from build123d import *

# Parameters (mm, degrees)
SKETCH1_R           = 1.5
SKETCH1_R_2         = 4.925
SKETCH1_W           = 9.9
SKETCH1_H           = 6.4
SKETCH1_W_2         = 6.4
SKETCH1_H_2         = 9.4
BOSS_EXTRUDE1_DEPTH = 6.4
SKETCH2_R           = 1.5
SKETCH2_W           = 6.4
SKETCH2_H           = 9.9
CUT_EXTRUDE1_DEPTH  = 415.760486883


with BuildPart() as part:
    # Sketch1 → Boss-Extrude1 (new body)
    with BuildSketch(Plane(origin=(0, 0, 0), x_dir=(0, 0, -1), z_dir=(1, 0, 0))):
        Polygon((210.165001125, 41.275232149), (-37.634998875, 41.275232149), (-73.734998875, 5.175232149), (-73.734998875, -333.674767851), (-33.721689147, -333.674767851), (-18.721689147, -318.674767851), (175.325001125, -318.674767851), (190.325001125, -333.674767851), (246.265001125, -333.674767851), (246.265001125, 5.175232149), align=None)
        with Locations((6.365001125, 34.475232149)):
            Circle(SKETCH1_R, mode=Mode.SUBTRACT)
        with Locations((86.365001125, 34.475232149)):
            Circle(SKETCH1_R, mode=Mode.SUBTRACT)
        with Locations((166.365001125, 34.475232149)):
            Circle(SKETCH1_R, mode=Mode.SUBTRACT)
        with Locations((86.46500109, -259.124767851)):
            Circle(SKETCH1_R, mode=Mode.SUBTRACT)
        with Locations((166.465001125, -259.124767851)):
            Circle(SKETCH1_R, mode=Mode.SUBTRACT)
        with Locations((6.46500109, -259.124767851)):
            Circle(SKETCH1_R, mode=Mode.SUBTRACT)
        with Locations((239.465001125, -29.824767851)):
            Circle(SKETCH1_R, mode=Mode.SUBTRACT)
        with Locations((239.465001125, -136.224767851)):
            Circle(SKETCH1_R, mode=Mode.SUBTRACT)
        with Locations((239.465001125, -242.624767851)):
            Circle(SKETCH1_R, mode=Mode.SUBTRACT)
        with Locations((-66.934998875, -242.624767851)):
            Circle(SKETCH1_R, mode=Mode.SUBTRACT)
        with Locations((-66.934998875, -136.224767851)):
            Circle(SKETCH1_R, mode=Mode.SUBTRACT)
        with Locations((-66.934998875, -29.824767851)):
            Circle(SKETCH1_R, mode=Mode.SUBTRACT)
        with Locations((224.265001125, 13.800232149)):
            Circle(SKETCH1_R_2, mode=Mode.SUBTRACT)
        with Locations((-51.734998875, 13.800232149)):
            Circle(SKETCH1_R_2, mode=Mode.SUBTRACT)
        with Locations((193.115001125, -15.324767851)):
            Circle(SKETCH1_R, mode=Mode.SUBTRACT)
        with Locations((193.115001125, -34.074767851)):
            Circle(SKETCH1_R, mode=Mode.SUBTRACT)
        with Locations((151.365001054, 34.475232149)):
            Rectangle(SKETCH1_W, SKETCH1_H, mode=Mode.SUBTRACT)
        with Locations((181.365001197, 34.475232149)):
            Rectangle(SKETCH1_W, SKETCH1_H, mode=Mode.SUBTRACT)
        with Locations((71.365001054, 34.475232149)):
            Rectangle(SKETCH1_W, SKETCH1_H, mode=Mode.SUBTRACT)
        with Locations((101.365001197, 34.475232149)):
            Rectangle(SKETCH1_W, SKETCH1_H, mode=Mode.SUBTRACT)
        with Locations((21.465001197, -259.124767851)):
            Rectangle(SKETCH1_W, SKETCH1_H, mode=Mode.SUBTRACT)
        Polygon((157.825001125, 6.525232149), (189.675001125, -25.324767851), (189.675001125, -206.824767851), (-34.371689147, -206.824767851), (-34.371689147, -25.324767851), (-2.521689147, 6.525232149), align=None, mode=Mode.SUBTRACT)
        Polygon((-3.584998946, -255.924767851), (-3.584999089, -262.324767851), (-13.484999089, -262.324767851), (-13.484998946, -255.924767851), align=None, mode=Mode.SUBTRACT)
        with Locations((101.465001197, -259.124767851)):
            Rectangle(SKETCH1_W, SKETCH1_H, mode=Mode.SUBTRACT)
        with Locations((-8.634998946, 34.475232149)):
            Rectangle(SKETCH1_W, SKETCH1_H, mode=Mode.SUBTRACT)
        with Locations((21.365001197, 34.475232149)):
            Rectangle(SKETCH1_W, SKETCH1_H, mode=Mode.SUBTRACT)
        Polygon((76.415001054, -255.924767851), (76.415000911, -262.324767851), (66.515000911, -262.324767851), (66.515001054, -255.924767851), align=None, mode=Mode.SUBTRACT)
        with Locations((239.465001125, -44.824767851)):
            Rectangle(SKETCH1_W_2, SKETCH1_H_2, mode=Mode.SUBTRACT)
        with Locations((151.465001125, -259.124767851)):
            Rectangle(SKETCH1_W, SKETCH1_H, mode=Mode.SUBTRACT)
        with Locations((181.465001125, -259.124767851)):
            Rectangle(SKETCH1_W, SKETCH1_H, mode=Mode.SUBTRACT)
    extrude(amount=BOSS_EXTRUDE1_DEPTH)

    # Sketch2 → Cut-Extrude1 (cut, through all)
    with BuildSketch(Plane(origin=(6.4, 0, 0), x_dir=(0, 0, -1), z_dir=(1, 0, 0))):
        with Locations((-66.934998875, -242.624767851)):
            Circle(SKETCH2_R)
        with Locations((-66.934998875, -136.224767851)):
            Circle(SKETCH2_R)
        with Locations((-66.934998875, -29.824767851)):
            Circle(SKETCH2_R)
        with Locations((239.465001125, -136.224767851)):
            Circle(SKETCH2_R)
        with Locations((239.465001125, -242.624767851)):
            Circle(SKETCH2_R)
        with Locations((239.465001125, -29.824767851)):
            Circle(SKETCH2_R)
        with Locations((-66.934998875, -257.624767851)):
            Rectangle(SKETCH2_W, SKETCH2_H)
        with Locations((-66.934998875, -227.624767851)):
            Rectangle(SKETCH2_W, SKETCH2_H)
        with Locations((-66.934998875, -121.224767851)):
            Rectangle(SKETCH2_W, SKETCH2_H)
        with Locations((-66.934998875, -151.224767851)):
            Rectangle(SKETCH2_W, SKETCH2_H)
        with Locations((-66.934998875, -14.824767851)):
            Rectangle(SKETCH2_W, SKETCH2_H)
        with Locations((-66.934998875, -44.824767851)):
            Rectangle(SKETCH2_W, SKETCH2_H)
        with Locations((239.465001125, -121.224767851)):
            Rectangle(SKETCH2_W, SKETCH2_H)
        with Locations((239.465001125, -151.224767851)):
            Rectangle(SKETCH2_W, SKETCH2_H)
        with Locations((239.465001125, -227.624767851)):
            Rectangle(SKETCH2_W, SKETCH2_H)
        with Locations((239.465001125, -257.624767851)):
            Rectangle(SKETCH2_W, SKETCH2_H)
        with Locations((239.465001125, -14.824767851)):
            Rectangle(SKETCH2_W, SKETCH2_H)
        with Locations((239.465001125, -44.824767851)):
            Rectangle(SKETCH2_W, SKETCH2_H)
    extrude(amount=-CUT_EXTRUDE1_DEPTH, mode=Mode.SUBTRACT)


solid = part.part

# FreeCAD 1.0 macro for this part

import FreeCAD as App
import Part
import Sketcher
Q = App.Units.Quantity

doc = App.newDocument("Part")
body = doc.addObject("PartDesign::Body", "Body")

# Sketch on YZ plane
sketch1 = body.newObject("Sketcher::SketchObject", "Sketch")
sketch1.AttachmentSupport = (doc.getObject("YZ_Plane"), [""])
sketch1.MapMode = "FlatFace"
sketch1.addGeometry([
    Part.LineSegment(App.Vector(41.3, -210.2, 0), App.Vector(41.3, 37.6, 0)),  # 0
    Part.LineSegment(App.Vector(41.3, 37.6, 0), App.Vector(5.2, 73.7, 0)),  # 1
    Part.LineSegment(App.Vector(5.2, 73.7, 0), App.Vector(-333.7, 73.7, 0)),  # 2
    Part.LineSegment(App.Vector(-333.7, 73.7, 0), App.Vector(-333.7, 33.7, 0)),  # 3
    Part.LineSegment(App.Vector(-333.7, 33.7, 0), App.Vector(-318.7, 18.7, 0)),  # 4
    Part.LineSegment(App.Vector(-318.7, 18.7, 0), App.Vector(-318.7, -175.3, 0)),  # 5
    Part.LineSegment(App.Vector(-318.7, -175.3, 0), App.Vector(-333.7, -190.3, 0)),  # 6
    Part.LineSegment(App.Vector(-333.7, -190.3, 0), App.Vector(-333.7, -246.3, 0)),  # 7
    Part.LineSegment(App.Vector(-333.7, -246.3, 0), App.Vector(5.2, -246.3, 0)),  # 8
    Part.LineSegment(App.Vector(5.2, -246.3, 0), App.Vector(41.3, -210.2, 0)),  # 9
    Part.Circle(App.Vector(-242.6, 66.9, 0), App.Vector(0, 0, 1), 1.5),  # 10
    Part.LineSegment(App.Vector(-255.9, 13.5, 0), App.Vector(-255.9, 3.6, 0)),  # 11
    Part.LineSegment(App.Vector(-255.9, 3.6, 0), App.Vector(-262.3, 3.6, 0)),  # 12
    Part.LineSegment(App.Vector(-262.3, 3.6, 0), App.Vector(-262.3, 13.5, 0)),  # 13
    Part.LineSegment(App.Vector(-262.3, 13.5, 0), App.Vector(-255.9, 13.5, 0)),  # 14
    Part.Circle(App.Vector(-259.1, -6.5, 0), App.Vector(0, 0, 1), 1.5),  # 15
    Part.LineSegment(App.Vector(-262.3, -26.4, 0), App.Vector(-262.3, -16.5, 0)),  # 16
    Part.LineSegment(App.Vector(-262.3, -16.5, 0), App.Vector(-255.9, -16.5, 0)),  # 17
    Part.LineSegment(App.Vector(-255.9, -16.5, 0), App.Vector(-255.9, -26.4, 0)),  # 18
    Part.LineSegment(App.Vector(-255.9, -26.4, 0), App.Vector(-262.3, -26.4, 0)),  # 19
    Part.LineSegment(App.Vector(-255.9, -66.5, 0), App.Vector(-255.9, -76.4, 0)),  # 20
    Part.LineSegment(App.Vector(-255.9, -76.4, 0), App.Vector(-262.3, -76.4, 0)),  # 21
    Part.LineSegment(App.Vector(-262.3, -76.4, 0), App.Vector(-262.3, -66.5, 0)),  # 22
    Part.LineSegment(App.Vector(-262.3, -66.5, 0), App.Vector(-255.9, -66.5, 0)),  # 23
    Part.Circle(App.Vector(-259.1, -86.5, 0), App.Vector(0, 0, 1), 1.5),  # 24
    Part.Circle(App.Vector(-136.2, 66.9, 0), App.Vector(0, 0, 1), 1.5),  # 25
    Part.LineSegment(App.Vector(-262.3, -106.4, 0), App.Vector(-262.3, -96.5, 0)),  # 26
    Part.LineSegment(App.Vector(-262.3, -96.5, 0), App.Vector(-255.9, -96.5, 0)),  # 27
    Part.LineSegment(App.Vector(-255.9, -96.5, 0), App.Vector(-255.9, -106.4, 0)),  # 28
    Part.LineSegment(App.Vector(-255.9, -106.4, 0), App.Vector(-262.3, -106.4, 0)),  # 29
    Part.LineSegment(App.Vector(-262.3, -156.4, 0), App.Vector(-262.3, -146.5, 0)),  # 30
    Part.LineSegment(App.Vector(-262.3, -146.5, 0), App.Vector(-255.9, -146.5, 0)),  # 31
    Part.LineSegment(App.Vector(-255.9, -146.5, 0), App.Vector(-255.9, -156.4, 0)),  # 32
    Part.LineSegment(App.Vector(-255.9, -156.4, 0), App.Vector(-262.3, -156.4, 0)),  # 33
    Part.Circle(App.Vector(-259.1, -166.5, 0), App.Vector(0, 0, 1), 1.5),  # 34
    Part.LineSegment(App.Vector(-262.3, -186.4, 0), App.Vector(-262.3, -176.5, 0)),  # 35
    Part.LineSegment(App.Vector(-262.3, -176.5, 0), App.Vector(-255.9, -176.5, 0)),  # 36
    Part.LineSegment(App.Vector(-255.9, -176.5, 0), App.Vector(-255.9, -186.4, 0)),  # 37
    Part.LineSegment(App.Vector(-255.9, -186.4, 0), App.Vector(-262.3, -186.4, 0)),  # 38
    Part.Circle(App.Vector(-242.6, -239.5, 0), App.Vector(0, 0, 1), 1.5),  # 39
    Part.Circle(App.Vector(-136.2, -239.5, 0), App.Vector(0, 0, 1), 1.5),  # 40
    Part.LineSegment(App.Vector(6.5, 2.5, 0), App.Vector(6.5, -157.8, 0)),  # 41
    Part.LineSegment(App.Vector(6.5, -157.8, 0), App.Vector(-25.3, -189.7, 0)),  # 42
    Part.LineSegment(App.Vector(-25.3, -189.7, 0), App.Vector(-206.8, -189.7, 0)),  # 43
    Part.LineSegment(App.Vector(-206.8, -189.7, 0), App.Vector(-206.8, 34.4, 0)),  # 44
    Part.LineSegment(App.Vector(-206.8, 34.4, 0), App.Vector(-25.3, 34.4, 0)),  # 45
    Part.LineSegment(App.Vector(-25.3, 34.4, 0), App.Vector(6.5, 2.5, 0)),  # 46
    Part.Circle(App.Vector(-29.8, 66.9, 0), App.Vector(0, 0, 1), 1.5),  # 47
    Part.Circle(App.Vector(13.8, 51.7, 0), App.Vector(0, 0, 1), 4.9),  # 48
    Part.LineSegment(App.Vector(31.3, 3.7, 0), App.Vector(31.3, 13.6, 0)),  # 49
    Part.LineSegment(App.Vector(31.3, 13.6, 0), App.Vector(37.7, 13.6, 0)),  # 50
    Part.LineSegment(App.Vector(37.7, 13.6, 0), App.Vector(37.7, 3.7, 0)),  # 51
    Part.LineSegment(App.Vector(37.7, 3.7, 0), App.Vector(31.3, 3.7, 0)),  # 52
    Part.Circle(App.Vector(34.5, -6.4, 0), App.Vector(0, 0, 1), 1.5),  # 53
    Part.LineSegment(App.Vector(31.3, -26.3, 0), App.Vector(31.3, -16.4, 0)),  # 54
    Part.LineSegment(App.Vector(31.3, -16.4, 0), App.Vector(37.7, -16.4, 0)),  # 55
    Part.LineSegment(App.Vector(37.7, -16.4, 0), App.Vector(37.7, -26.3, 0)),  # 56
    Part.LineSegment(App.Vector(37.7, -26.3, 0), App.Vector(31.3, -26.3, 0)),  # 57
    Part.LineSegment(App.Vector(31.3, -76.3, 0), App.Vector(31.3, -66.4, 0)),  # 58
    Part.LineSegment(App.Vector(31.3, -66.4, 0), App.Vector(37.7, -66.4, 0)),  # 59
    Part.LineSegment(App.Vector(37.7, -66.4, 0), App.Vector(37.7, -76.3, 0)),  # 60
    Part.LineSegment(App.Vector(37.7, -76.3, 0), App.Vector(31.3, -76.3, 0)),  # 61
    Part.Circle(App.Vector(34.5, -86.4, 0), App.Vector(0, 0, 1), 1.5),  # 62
    Part.LineSegment(App.Vector(-49.5, -242.7, 0), App.Vector(-49.5, -236.3, 0)),  # 63
    Part.LineSegment(App.Vector(-49.5, -236.3, 0), App.Vector(-40.1, -236.3, 0)),  # 64
    Part.LineSegment(App.Vector(-40.1, -236.3, 0), App.Vector(-40.1, -242.7, 0)),  # 65
    Part.LineSegment(App.Vector(-40.1, -242.7, 0), App.Vector(-49.5, -242.7, 0)),  # 66
    Part.LineSegment(App.Vector(31.3, -106.3, 0), App.Vector(31.3, -96.4, 0)),  # 67
    Part.LineSegment(App.Vector(31.3, -96.4, 0), App.Vector(37.7, -96.4, 0)),  # 68
    Part.LineSegment(App.Vector(37.7, -96.4, 0), App.Vector(37.7, -106.3, 0)),  # 69
    Part.LineSegment(App.Vector(37.7, -106.3, 0), App.Vector(31.3, -106.3, 0)),  # 70
    Part.LineSegment(App.Vector(31.3, -156.3, 0), App.Vector(31.3, -146.4, 0)),  # 71
    Part.LineSegment(App.Vector(31.3, -146.4, 0), App.Vector(37.7, -146.4, 0)),  # 72
    Part.LineSegment(App.Vector(37.7, -146.4, 0), App.Vector(37.7, -156.3, 0)),  # 73
    Part.LineSegment(App.Vector(37.7, -156.3, 0), App.Vector(31.3, -156.3, 0)),  # 74
    Part.Circle(App.Vector(-34.1, -193.1, 0), App.Vector(0, 0, 1), 1.5),  # 75
    Part.Circle(App.Vector(-15.3, -193.1, 0), App.Vector(0, 0, 1), 1.5),  # 76
    Part.Circle(App.Vector(-29.8, -239.5, 0), App.Vector(0, 0, 1), 1.5),  # 77
    Part.Circle(App.Vector(34.5, -166.4, 0), App.Vector(0, 0, 1), 1.5),  # 78
    Part.LineSegment(App.Vector(31.3, -186.3, 0), App.Vector(31.3, -176.4, 0)),  # 79
    Part.LineSegment(App.Vector(31.3, -176.4, 0), App.Vector(37.7, -176.4, 0)),  # 80
    Part.LineSegment(App.Vector(37.7, -176.4, 0), App.Vector(37.7, -186.3, 0)),  # 81
    Part.LineSegment(App.Vector(37.7, -186.3, 0), App.Vector(31.3, -186.3, 0)),  # 82
    Part.Circle(App.Vector(13.8, -224.3, 0), App.Vector(0, 0, 1), 4.9),  # 83
], False)
sketch1.addConstraint([
    Sketcher.Constraint("Coincident", 0, 2, 1, 1),
    Sketcher.Constraint("Coincident", 1, 2, 2, 1),
    Sketcher.Constraint("Coincident", 2, 2, 3, 1),
    Sketcher.Constraint("Coincident", 3, 2, 4, 1),
    Sketcher.Constraint("Coincident", 4, 2, 5, 1),
    Sketcher.Constraint("Coincident", 5, 2, 6, 1),
    Sketcher.Constraint("Coincident", 6, 2, 7, 1),
    Sketcher.Constraint("Coincident", 7, 2, 8, 1),
    Sketcher.Constraint("Coincident", 8, 2, 9, 1),
    Sketcher.Constraint("Coincident", 9, 2, 0, 1),
    Sketcher.Constraint("Coincident", 11, 2, 12, 1),
    Sketcher.Constraint("Coincident", 12, 2, 13, 1),
    Sketcher.Constraint("Coincident", 13, 2, 14, 1),
    Sketcher.Constraint("Coincident", 14, 2, 11, 1),
    Sketcher.Constraint("Coincident", 16, 2, 17, 1),
    Sketcher.Constraint("Coincident", 17, 2, 18, 1),
    Sketcher.Constraint("Coincident", 18, 2, 19, 1),
    Sketcher.Constraint("Coincident", 19, 2, 16, 1),
    Sketcher.Constraint("Coincident", 20, 2, 21, 1),
    Sketcher.Constraint("Coincident", 21, 2, 22, 1),
    Sketcher.Constraint("Coincident", 22, 2, 23, 1),
    Sketcher.Constraint("Coincident", 23, 2, 20, 1),
    Sketcher.Constraint("Coincident", 26, 2, 27, 1),
    Sketcher.Constraint("Coincident", 27, 2, 28, 1),
    Sketcher.Constraint("Coincident", 28, 2, 29, 1),
    Sketcher.Constraint("Coincident", 29, 2, 26, 1),
    Sketcher.Constraint("Coincident", 30, 2, 31, 1),
    Sketcher.Constraint("Coincident", 31, 2, 32, 1),
    Sketcher.Constraint("Coincident", 32, 2, 33, 1),
    Sketcher.Constraint("Coincident", 33, 2, 30, 1),
    Sketcher.Constraint("Coincident", 35, 2, 36, 1),
    Sketcher.Constraint("Coincident", 36, 2, 37, 1),
    Sketcher.Constraint("Coincident", 37, 2, 38, 1),
    Sketcher.Constraint("Coincident", 38, 2, 35, 1),
    Sketcher.Constraint("Coincident", 41, 2, 42, 1),
    Sketcher.Constraint("Coincident", 42, 2, 43, 1),
    Sketcher.Constraint("Coincident", 43, 2, 44, 1),
    Sketcher.Constraint("Coincident", 44, 2, 45, 1),
    Sketcher.Constraint("Coincident", 45, 2, 46, 1),
    Sketcher.Constraint("Coincident", 46, 2, 41, 1),
    Sketcher.Constraint("Coincident", 49, 2, 50, 1),
    Sketcher.Constraint("Coincident", 50, 2, 51, 1),
    Sketcher.Constraint("Coincident", 51, 2, 52, 1),
    Sketcher.Constraint("Coincident", 52, 2, 49, 1),
    Sketcher.Constraint("Coincident", 54, 2, 55, 1),
    Sketcher.Constraint("Coincident", 55, 2, 56, 1),
    Sketcher.Constraint("Coincident", 56, 2, 57, 1),
    Sketcher.Constraint("Coincident", 57, 2, 54, 1),
    Sketcher.Constraint("Coincident", 58, 2, 59, 1),
    Sketcher.Constraint("Coincident", 59, 2, 60, 1),
    Sketcher.Constraint("Coincident", 60, 2, 61, 1),
    Sketcher.Constraint("Coincident", 61, 2, 58, 1),
    Sketcher.Constraint("Coincident", 63, 2, 64, 1),
    Sketcher.Constraint("Coincident", 64, 2, 65, 1),
    Sketcher.Constraint("Coincident", 65, 2, 66, 1),
    Sketcher.Constraint("Coincident", 66, 2, 63, 1),
    Sketcher.Constraint("Coincident", 67, 2, 68, 1),
    Sketcher.Constraint("Coincident", 68, 2, 69, 1),
    Sketcher.Constraint("Coincident", 69, 2, 70, 1),
    Sketcher.Constraint("Coincident", 70, 2, 67, 1),
    Sketcher.Constraint("Coincident", 71, 2, 72, 1),
    Sketcher.Constraint("Coincident", 72, 2, 73, 1),
    Sketcher.Constraint("Coincident", 73, 2, 74, 1),
    Sketcher.Constraint("Coincident", 74, 2, 71, 1),
    Sketcher.Constraint("Coincident", 79, 2, 80, 1),
    Sketcher.Constraint("Coincident", 80, 2, 81, 1),
    Sketcher.Constraint("Coincident", 81, 2, 82, 1),
    Sketcher.Constraint("Coincident", 82, 2, 79, 1),
    Sketcher.Constraint("Vertical", 0),
    Sketcher.Constraint("Horizontal", 2),
    Sketcher.Constraint("Vertical", 3),
    Sketcher.Constraint("Vertical", 5),
    Sketcher.Constraint("Vertical", 7),
    Sketcher.Constraint("Horizontal", 8),
    Sketcher.Constraint("Vertical", 11),
    Sketcher.Constraint("Horizontal", 12),
    Sketcher.Constraint("Vertical", 13),
    Sketcher.Constraint("Horizontal", 14),
    Sketcher.Constraint("Vertical", 16),
    Sketcher.Constraint("Horizontal", 17),
    Sketcher.Constraint("Vertical", 18),
    Sketcher.Constraint("Horizontal", 19),
    Sketcher.Constraint("Vertical", 20),
    Sketcher.Constraint("Horizontal", 21),
    Sketcher.Constraint("Vertical", 22),
    Sketcher.Constraint("Horizontal", 23),
    Sketcher.Constraint("Vertical", 26),
    Sketcher.Constraint("Horizontal", 27),
    Sketcher.Constraint("Vertical", 28),
    Sketcher.Constraint("Horizontal", 29),
    Sketcher.Constraint("Vertical", 30),
    Sketcher.Constraint("Horizontal", 31),
    Sketcher.Constraint("Vertical", 32),
    Sketcher.Constraint("Horizontal", 33),
    Sketcher.Constraint("Vertical", 35),
    Sketcher.Constraint("Horizontal", 36),
    Sketcher.Constraint("Vertical", 37),
    Sketcher.Constraint("Horizontal", 38),
    Sketcher.Constraint("Vertical", 41),
    Sketcher.Constraint("Horizontal", 43),
    Sketcher.Constraint("Vertical", 44),
    Sketcher.Constraint("Horizontal", 45),
    Sketcher.Constraint("Vertical", 49),
    Sketcher.Constraint("Horizontal", 50),
    Sketcher.Constraint("Vertical", 51),
    Sketcher.Constraint("Horizontal", 52),
    Sketcher.Constraint("Vertical", 54),
    Sketcher.Constraint("Horizontal", 55),
    Sketcher.Constraint("Vertical", 56),
    Sketcher.Constraint("Horizontal", 57),
    Sketcher.Constraint("Vertical", 58),
    Sketcher.Constraint("Horizontal", 59),
    Sketcher.Constraint("Vertical", 60),
    Sketcher.Constraint("Horizontal", 61),
    Sketcher.Constraint("Vertical", 63),
    Sketcher.Constraint("Horizontal", 64),
    Sketcher.Constraint("Vertical", 65),
    Sketcher.Constraint("Horizontal", 66),
    Sketcher.Constraint("Vertical", 67),
    Sketcher.Constraint("Horizontal", 68),
    Sketcher.Constraint("Vertical", 69),
    Sketcher.Constraint("Horizontal", 70),
    Sketcher.Constraint("Vertical", 71),
    Sketcher.Constraint("Horizontal", 72),
    Sketcher.Constraint("Vertical", 73),
    Sketcher.Constraint("Horizontal", 74),
    Sketcher.Constraint("Vertical", 79),
    Sketcher.Constraint("Horizontal", 80),
    Sketcher.Constraint("Vertical", 81),
    Sketcher.Constraint("Horizontal", 82),
    Sketcher.Constraint("Equal", 10, 15),
    Sketcher.Constraint("Equal", 15, 24),
    Sketcher.Constraint("Equal", 24, 25),
    Sketcher.Constraint("Equal", 25, 34),
    Sketcher.Constraint("Equal", 34, 39),
    Sketcher.Constraint("Equal", 39, 40),
    Sketcher.Constraint("Equal", 40, 47),
    Sketcher.Constraint("Equal", 47, 53),
    Sketcher.Constraint("Equal", 53, 62),
    Sketcher.Constraint("Equal", 62, 75),
    Sketcher.Constraint("Equal", 75, 76),
    Sketcher.Constraint("Equal", 76, 77),
    Sketcher.Constraint("Equal", 77, 78),
    Sketcher.Constraint("Equal", 48, 83),
    Sketcher.Constraint("Parallel", 1, 4),
    Sketcher.Constraint("Perpendicular", 4, 6),
    Sketcher.Constraint("Parallel", 6, 9),
    Sketcher.Constraint("Parallel", 9, 42),
    Sketcher.Constraint("Perpendicular", 42, 46),
    Sketcher.Constraint("Horizontal", 10, 3, 25, 3),
    Sketcher.Constraint("Horizontal", 39, 3, 40, 3),
    Sketcher.Constraint("Horizontal", 25, 3, 47, 3),
    Sketcher.Constraint("Horizontal", 75, 3, 76, 3),
    Sketcher.Constraint("Horizontal", 40, 3, 77, 3),
    Sketcher.Constraint("Vertical", 15, 3, 24, 3),
    Sketcher.Constraint("Vertical", 24, 3, 34, 3),
    Sketcher.Constraint("Vertical", 10, 3, 39, 3),
    Sketcher.Constraint("Vertical", 25, 3, 40, 3),
    Sketcher.Constraint("Vertical", 53, 3, 62, 3),
    Sketcher.Constraint("Vertical", 47, 3, 77, 3),
    Sketcher.Constraint("Vertical", 62, 3, 78, 3),
    Sketcher.Constraint("Vertical", 48, 3, 83, 3),
    Sketcher.Constraint("Vertical", 3, 2, 6, 2),
    Sketcher.Constraint("Vertical", 1, 2, 8, 2),
    Sketcher.Constraint("Vertical", 13, 2, 16, 2),
    Sketcher.Constraint("Vertical", 14, 2, 17, 2),
    Sketcher.Constraint("Vertical", 18, 2, 20, 2),
    Sketcher.Constraint("Vertical", 19, 2, 21, 2),
    Sketcher.Constraint("Vertical", 22, 2, 26, 2),
    Sketcher.Constraint("Vertical", 23, 2, 27, 2),
    Sketcher.Constraint("Vertical", 29, 2, 30, 2),
    Sketcher.Constraint("Vertical", 28, 2, 31, 2),
    Sketcher.Constraint("Vertical", 33, 2, 35, 2),
    Sketcher.Constraint("Vertical", 32, 2, 36, 2),
    Sketcher.Constraint("Vertical", 42, 2, 45, 2),
    Sketcher.Constraint("Vertical", 52, 2, 54, 2),
    Sketcher.Constraint("Vertical", 51, 2, 55, 2),
    Sketcher.Constraint("Vertical", 57, 2, 58, 2),
    Sketcher.Constraint("Vertical", 56, 2, 59, 2),
    Sketcher.Constraint("Vertical", 61, 2, 67, 2),
    Sketcher.Constraint("Vertical", 60, 2, 68, 2),
    Sketcher.Constraint("Vertical", 70, 2, 71, 2),
    Sketcher.Constraint("Vertical", 69, 2, 72, 2),
    Sketcher.Constraint("Vertical", 74, 2, 79, 2),
    Sketcher.Constraint("Vertical", 73, 2, 80, 2),
    Sketcher.Constraint("Equal", 38, 50),
    Sketcher.Constraint("Equal", 13, 16),
    Sketcher.Constraint("Equal", 18, 20),
    Sketcher.Constraint("Equal", 22, 26),
    Sketcher.Constraint("Equal", 28, 30),
    Sketcher.Constraint("Equal", 32, 35),
    Sketcher.Constraint("Equal", 37, 49),
    Sketcher.Constraint("Equal", 51, 54),
    Sketcher.Constraint("Equal", 56, 58),
    Sketcher.Constraint("Equal", 82, 63),
    Sketcher.Constraint("Equal", 60, 67),
    Sketcher.Constraint("Equal", 69, 71),
    Sketcher.Constraint("Equal", 73, 79),
    Sketcher.Constraint("Equal", 4, 6),
    Sketcher.Constraint("Diameter", 10, Q("3 mm")),
    Sketcher.Constraint("Diameter", 48, Q("9.85 mm")),
    Sketcher.Constraint("DistanceX", 12, 2, 12, 1, Q("6.4 mm")),
    Sketcher.Constraint("DistanceX", 43, 2, 43, 1, Q("181.5 mm")),
    Sketcher.Constraint("DistanceX", 64, 1, 64, 2, Q("9.4 mm")),
    Sketcher.Constraint("DistanceY", 0, 1, 0, 2, Q("247.8 mm")),
    Sketcher.Constraint("DistanceY", 11, 2, 11, 1, Q("9.9 mm")),
    Sketcher.Constraint("DistanceX", 2, 2, 2, 1, Q("338.85 mm")),
    Sketcher.Constraint("DistanceY", 7, 2, 7, 1, Q("55.94 mm")),
    Sketcher.Constraint("DistanceY", -1, 1, 10, 3, Q("66.934999 mm")),
    Sketcher.Constraint("DistanceY", 15, 3, -1, 1, Q("6.465001 mm")),
    Sketcher.Constraint("DistanceY", 24, 3, -1, 1, Q("86.465001 mm")),
    Sketcher.Constraint("DistanceY", 34, 3, -1, 1, Q("166.465001 mm")),
    Sketcher.Constraint("DistanceY", 39, 3, -1, 1, Q("239.465001 mm")),
    Sketcher.Constraint("DistanceY", -1, 1, 48, 3, Q("51.734999 mm")),
    Sketcher.Constraint("DistanceY", 53, 3, -1, 1, Q("6.365001 mm")),
    Sketcher.Constraint("DistanceY", 62, 3, -1, 1, Q("86.365001 mm")),
    Sketcher.Constraint("DistanceY", 75, 3, -1, 1, Q("193.115001 mm")),
    Sketcher.Constraint("DistanceY", 78, 3, -1, 1, Q("166.365001 mm")),
    Sketcher.Constraint("DistanceY", 83, 3, -1, 1, Q("224.265001 mm")),
    Sketcher.Constraint("DistanceY", -1, 1, 0, 2, Q("37.634999 mm")),
    Sketcher.Constraint("DistanceY", -1, 1, 1, 2, Q("73.734999 mm")),
    Sketcher.Constraint("DistanceY", 5, 2, -1, 1, Q("175.325001 mm")),
    Sketcher.Constraint("DistanceY", -1, 1, 11, 2, Q("3.584999 mm")),
    Sketcher.Constraint("DistanceY", 16, 2, -1, 1, Q("16.515001 mm")),
    Sketcher.Constraint("DistanceY", 20, 2, -1, 1, Q("76.415001 mm")),
    Sketcher.Constraint("DistanceY", 26, 2, -1, 1, Q("96.515001 mm")),
    Sketcher.Constraint("DistanceY", 30, 2, -1, 1, Q("146.515001 mm")),
    Sketcher.Constraint("DistanceY", 35, 2, -1, 1, Q("176.515001 mm")),
    Sketcher.Constraint("DistanceY", 41, 2, -1, 1, Q("157.825001 mm")),
    Sketcher.Constraint("DistanceY", 42, 2, -1, 1, Q("189.675001 mm")),
    Sketcher.Constraint("DistanceY", -1, 1, 49, 2, Q("13.584999 mm")),
    Sketcher.Constraint("DistanceY", 54, 2, -1, 1, Q("16.415001 mm")),
    Sketcher.Constraint("DistanceY", 58, 2, -1, 1, Q("66.415001 mm")),
    Sketcher.Constraint("DistanceY", 63, 2, -1, 1, Q("236.265001 mm")),
    Sketcher.Constraint("DistanceY", 67, 2, -1, 1, Q("96.415001 mm")),
    Sketcher.Constraint("DistanceY", 71, 2, -1, 1, Q("146.415001 mm")),
    Sketcher.Constraint("DistanceY", 79, 2, -1, 1, Q("176.415001 mm")),
    Sketcher.Constraint("DistanceY", 3, 2, 3, 1, Q("40.01331 mm")),
    Sketcher.Constraint("DistanceY", 41, 2, 41, 1, Q("160.34669 mm")),
    Sketcher.Constraint("DistanceX", 10, 3, -1, 1, Q("242.624768 mm")),
    Sketcher.Constraint("DistanceX", 15, 3, -1, 1, Q("259.124768 mm")),
    Sketcher.Constraint("DistanceX", 25, 3, -1, 1, Q("136.224768 mm")),
    Sketcher.Constraint("DistanceX", 47, 3, -1, 1, Q("29.824768 mm")),
    Sketcher.Constraint("DistanceX", -1, 1, 48, 3, Q("13.800232 mm")),
    Sketcher.Constraint("DistanceX", -1, 1, 53, 3, Q("34.475232 mm")),
    Sketcher.Constraint("DistanceX", 75, 3, -1, 1, Q("34.074768 mm")),
    Sketcher.Constraint("DistanceX", 76, 3, -1, 1, Q("15.324768 mm")),
    Sketcher.Constraint("DistanceX", -1, 1, 0, 2, Q("41.275232 mm")),
    Sketcher.Constraint("DistanceX", 11, 2, -1, 1, Q("255.924768 mm")),
    Sketcher.Constraint("DistanceX", -1, 1, 41, 2, Q("6.525232 mm")),
    Sketcher.Constraint("DistanceX", -1, 1, 49, 2, Q("31.275232 mm")),
    Sketcher.Constraint("DistanceX", 63, 2, -1, 1, Q("49.524768 mm")),
])
pad1 = body.newObject("PartDesign::Pad", "Pad")
pad1.Profile = sketch1
pad1.Length = 6.4

# Sketch on YZ plane
sketch2 = body.newObject("Sketcher::SketchObject", "Sketch001")
sketch2.AttachmentSupport = (doc.getObject("YZ_Plane"), [""])
sketch2.MapMode = "FlatFace"
sketch2.AttachmentOffset = App.Placement(App.Vector(0, 0, 6.4), App.Rotation())
sketch2.addGeometry([
    Part.Circle(App.Vector(-242.6, 66.9, 0), App.Vector(0, 0, 1), 1.5),  # 0
    Part.Circle(App.Vector(-136.2, 66.9, 0), App.Vector(0, 0, 1), 1.5),  # 1
    Part.Circle(App.Vector(-29.8, 66.9, 0), App.Vector(0, 0, 1), 1.5),  # 2
    Part.Circle(App.Vector(-136.2, -239.5, 0), App.Vector(0, 0, 1), 1.5),  # 3
    Part.Circle(App.Vector(-242.6, -239.5, 0), App.Vector(0, 0, 1), 1.5),  # 4
    Part.Circle(App.Vector(-29.8, -239.5, 0), App.Vector(0, 0, 1), 1.5),  # 5
    Part.LineSegment(App.Vector(-252.7, 70.1, 0), App.Vector(-262.6, 70.1, 0)),  # 6
    Part.LineSegment(App.Vector(-262.6, 70.1, 0), App.Vector(-262.6, 63.7, 0)),  # 7
    Part.LineSegment(App.Vector(-262.6, 63.7, 0), App.Vector(-252.7, 63.7, 0)),  # 8
    Part.LineSegment(App.Vector(-252.7, 63.7, 0), App.Vector(-252.7, 70.1, 0)),  # 9
    Part.LineSegment(App.Vector(-222.7, 70.1, 0), App.Vector(-232.6, 70.1, 0)),  # 10
    Part.LineSegment(App.Vector(-232.6, 70.1, 0), App.Vector(-232.6, 63.7, 0)),  # 11
    Part.LineSegment(App.Vector(-232.6, 63.7, 0), App.Vector(-222.7, 63.7, 0)),  # 12
    Part.LineSegment(App.Vector(-222.7, 63.7, 0), App.Vector(-222.7, 70.1, 0)),  # 13
    Part.LineSegment(App.Vector(-116.3, 70.1, 0), App.Vector(-126.2, 70.1, 0)),  # 14
    Part.LineSegment(App.Vector(-126.2, 70.1, 0), App.Vector(-126.2, 63.7, 0)),  # 15
    Part.LineSegment(App.Vector(-126.2, 63.7, 0), App.Vector(-116.3, 63.7, 0)),  # 16
    Part.LineSegment(App.Vector(-116.3, 63.7, 0), App.Vector(-116.3, 70.1, 0)),  # 17
    Part.LineSegment(App.Vector(-146.3, 70.1, 0), App.Vector(-156.2, 70.1, 0)),  # 18
    Part.LineSegment(App.Vector(-156.2, 70.1, 0), App.Vector(-156.2, 63.7, 0)),  # 19
    Part.LineSegment(App.Vector(-156.2, 63.7, 0), App.Vector(-146.3, 63.7, 0)),  # 20
    Part.LineSegment(App.Vector(-146.3, 63.7, 0), App.Vector(-146.3, 70.1, 0)),  # 21
    Part.LineSegment(App.Vector(-9.9, 70.1, 0), App.Vector(-19.8, 70.1, 0)),  # 22
    Part.LineSegment(App.Vector(-19.8, 70.1, 0), App.Vector(-19.8, 63.7, 0)),  # 23
    Part.LineSegment(App.Vector(-19.8, 63.7, 0), App.Vector(-9.9, 63.7, 0)),  # 24
    Part.LineSegment(App.Vector(-9.9, 63.7, 0), App.Vector(-9.9, 70.1, 0)),  # 25
    Part.LineSegment(App.Vector(-39.9, 70.1, 0), App.Vector(-49.8, 70.1, 0)),  # 26
    Part.LineSegment(App.Vector(-49.8, 70.1, 0), App.Vector(-49.8, 63.7, 0)),  # 27
    Part.LineSegment(App.Vector(-49.8, 63.7, 0), App.Vector(-39.9, 63.7, 0)),  # 28
    Part.LineSegment(App.Vector(-39.9, 63.7, 0), App.Vector(-39.9, 70.1, 0)),  # 29
    Part.LineSegment(App.Vector(-116.3, -236.3, 0), App.Vector(-126.2, -236.3, 0)),  # 30
    Part.LineSegment(App.Vector(-126.2, -236.3, 0), App.Vector(-126.2, -242.7, 0)),  # 31
    Part.LineSegment(App.Vector(-126.2, -242.7, 0), App.Vector(-116.3, -242.7, 0)),  # 32
    Part.LineSegment(App.Vector(-116.3, -242.7, 0), App.Vector(-116.3, -236.3, 0)),  # 33
    Part.LineSegment(App.Vector(-146.3, -236.3, 0), App.Vector(-156.2, -236.3, 0)),  # 34
    Part.LineSegment(App.Vector(-156.2, -236.3, 0), App.Vector(-156.2, -242.7, 0)),  # 35
    Part.LineSegment(App.Vector(-156.2, -242.7, 0), App.Vector(-146.3, -242.7, 0)),  # 36
    Part.LineSegment(App.Vector(-146.3, -242.7, 0), App.Vector(-146.3, -236.3, 0)),  # 37
    Part.LineSegment(App.Vector(-222.7, -236.3, 0), App.Vector(-232.6, -236.3, 0)),  # 38
    Part.LineSegment(App.Vector(-232.6, -236.3, 0), App.Vector(-232.6, -242.7, 0)),  # 39
    Part.LineSegment(App.Vector(-232.6, -242.7, 0), App.Vector(-222.7, -242.7, 0)),  # 40
    Part.LineSegment(App.Vector(-222.7, -242.7, 0), App.Vector(-222.7, -236.3, 0)),  # 41
    Part.LineSegment(App.Vector(-252.7, -236.3, 0), App.Vector(-262.6, -236.3, 0)),  # 42
    Part.LineSegment(App.Vector(-262.6, -236.3, 0), App.Vector(-262.6, -242.7, 0)),  # 43
    Part.LineSegment(App.Vector(-262.6, -242.7, 0), App.Vector(-252.7, -242.7, 0)),  # 44
    Part.LineSegment(App.Vector(-252.7, -242.7, 0), App.Vector(-252.7, -236.3, 0)),  # 45
    Part.LineSegment(App.Vector(-9.9, -236.3, 0), App.Vector(-19.8, -236.3, 0)),  # 46
    Part.LineSegment(App.Vector(-19.8, -236.3, 0), App.Vector(-19.8, -242.7, 0)),  # 47
    Part.LineSegment(App.Vector(-19.8, -242.7, 0), App.Vector(-9.9, -242.7, 0)),  # 48
    Part.LineSegment(App.Vector(-9.9, -242.7, 0), App.Vector(-9.9, -236.3, 0)),  # 49
    Part.LineSegment(App.Vector(-39.9, -236.3, 0), App.Vector(-49.8, -236.3, 0)),  # 50
    Part.LineSegment(App.Vector(-49.8, -236.3, 0), App.Vector(-49.8, -242.7, 0)),  # 51
    Part.LineSegment(App.Vector(-49.8, -242.7, 0), App.Vector(-39.9, -242.7, 0)),  # 52
    Part.LineSegment(App.Vector(-39.9, -242.7, 0), App.Vector(-39.9, -236.3, 0)),  # 53
], False)
sketch2.addConstraint([
    Sketcher.Constraint("Coincident", 6, 2, 7, 1),
    Sketcher.Constraint("Coincident", 7, 2, 8, 1),
    Sketcher.Constraint("Coincident", 8, 2, 9, 1),
    Sketcher.Constraint("Coincident", 9, 2, 6, 1),
    Sketcher.Constraint("Coincident", 10, 2, 11, 1),
    Sketcher.Constraint("Coincident", 11, 2, 12, 1),
    Sketcher.Constraint("Coincident", 12, 2, 13, 1),
    Sketcher.Constraint("Coincident", 13, 2, 10, 1),
    Sketcher.Constraint("Coincident", 14, 2, 15, 1),
    Sketcher.Constraint("Coincident", 15, 2, 16, 1),
    Sketcher.Constraint("Coincident", 16, 2, 17, 1),
    Sketcher.Constraint("Coincident", 17, 2, 14, 1),
    Sketcher.Constraint("Coincident", 18, 2, 19, 1),
    Sketcher.Constraint("Coincident", 19, 2, 20, 1),
    Sketcher.Constraint("Coincident", 20, 2, 21, 1),
    Sketcher.Constraint("Coincident", 21, 2, 18, 1),
    Sketcher.Constraint("Coincident", 22, 2, 23, 1),
    Sketcher.Constraint("Coincident", 23, 2, 24, 1),
    Sketcher.Constraint("Coincident", 24, 2, 25, 1),
    Sketcher.Constraint("Coincident", 25, 2, 22, 1),
    Sketcher.Constraint("Coincident", 26, 2, 27, 1),
    Sketcher.Constraint("Coincident", 27, 2, 28, 1),
    Sketcher.Constraint("Coincident", 28, 2, 29, 1),
    Sketcher.Constraint("Coincident", 29, 2, 26, 1),
    Sketcher.Constraint("Coincident", 30, 2, 31, 1),
    Sketcher.Constraint("Coincident", 31, 2, 32, 1),
    Sketcher.Constraint("Coincident", 32, 2, 33, 1),
    Sketcher.Constraint("Coincident", 33, 2, 30, 1),
    Sketcher.Constraint("Coincident", 34, 2, 35, 1),
    Sketcher.Constraint("Coincident", 35, 2, 36, 1),
    Sketcher.Constraint("Coincident", 36, 2, 37, 1),
    Sketcher.Constraint("Coincident", 37, 2, 34, 1),
    Sketcher.Constraint("Coincident", 38, 2, 39, 1),
    Sketcher.Constraint("Coincident", 39, 2, 40, 1),
    Sketcher.Constraint("Coincident", 40, 2, 41, 1),
    Sketcher.Constraint("Coincident", 41, 2, 38, 1),
    Sketcher.Constraint("Coincident", 42, 2, 43, 1),
    Sketcher.Constraint("Coincident", 43, 2, 44, 1),
    Sketcher.Constraint("Coincident", 44, 2, 45, 1),
    Sketcher.Constraint("Coincident", 45, 2, 42, 1),
    Sketcher.Constraint("Coincident", 46, 2, 47, 1),
    Sketcher.Constraint("Coincident", 47, 2, 48, 1),
    Sketcher.Constraint("Coincident", 48, 2, 49, 1),
    Sketcher.Constraint("Coincident", 49, 2, 46, 1),
    Sketcher.Constraint("Coincident", 50, 2, 51, 1),
    Sketcher.Constraint("Coincident", 51, 2, 52, 1),
    Sketcher.Constraint("Coincident", 52, 2, 53, 1),
    Sketcher.Constraint("Coincident", 53, 2, 50, 1),
    Sketcher.Constraint("Horizontal", 6),
    Sketcher.Constraint("Vertical", 7),
    Sketcher.Constraint("Horizontal", 8),
    Sketcher.Constraint("Vertical", 9),
    Sketcher.Constraint("Horizontal", 10),
    Sketcher.Constraint("Vertical", 11),
    Sketcher.Constraint("Horizontal", 12),
    Sketcher.Constraint("Vertical", 13),
    Sketcher.Constraint("Horizontal", 14),
    Sketcher.Constraint("Vertical", 15),
    Sketcher.Constraint("Horizontal", 16),
    Sketcher.Constraint("Vertical", 17),
    Sketcher.Constraint("Horizontal", 18),
    Sketcher.Constraint("Vertical", 19),
    Sketcher.Constraint("Horizontal", 20),
    Sketcher.Constraint("Vertical", 21),
    Sketcher.Constraint("Horizontal", 22),
    Sketcher.Constraint("Vertical", 23),
    Sketcher.Constraint("Horizontal", 24),
    Sketcher.Constraint("Vertical", 25),
    Sketcher.Constraint("Horizontal", 26),
    Sketcher.Constraint("Vertical", 27),
    Sketcher.Constraint("Horizontal", 28),
    Sketcher.Constraint("Vertical", 29),
    Sketcher.Constraint("Horizontal", 30),
    Sketcher.Constraint("Vertical", 31),
    Sketcher.Constraint("Horizontal", 32),
    Sketcher.Constraint("Vertical", 33),
    Sketcher.Constraint("Horizontal", 34),
    Sketcher.Constraint("Vertical", 35),
    Sketcher.Constraint("Horizontal", 36),
    Sketcher.Constraint("Vertical", 37),
    Sketcher.Constraint("Horizontal", 38),
    Sketcher.Constraint("Vertical", 39),
    Sketcher.Constraint("Horizontal", 40),
    Sketcher.Constraint("Vertical", 41),
    Sketcher.Constraint("Horizontal", 42),
    Sketcher.Constraint("Vertical", 43),
    Sketcher.Constraint("Horizontal", 44),
    Sketcher.Constraint("Vertical", 45),
    Sketcher.Constraint("Horizontal", 46),
    Sketcher.Constraint("Vertical", 47),
    Sketcher.Constraint("Horizontal", 48),
    Sketcher.Constraint("Vertical", 49),
    Sketcher.Constraint("Horizontal", 50),
    Sketcher.Constraint("Vertical", 51),
    Sketcher.Constraint("Horizontal", 52),
    Sketcher.Constraint("Vertical", 53),
    Sketcher.Constraint("Equal", 0, 1),
    Sketcher.Constraint("Equal", 1, 2),
    Sketcher.Constraint("Equal", 2, 3),
    Sketcher.Constraint("Equal", 3, 4),
    Sketcher.Constraint("Equal", 4, 5),
    Sketcher.Constraint("Horizontal", 0, 3, 1, 3),
    Sketcher.Constraint("Horizontal", 1, 3, 2, 3),
    Sketcher.Constraint("Horizontal", 3, 3, 4, 3),
    Sketcher.Constraint("Horizontal", 4, 3, 5, 3),
    Sketcher.Constraint("Horizontal", 9, 2, 10, 2),
    Sketcher.Constraint("Horizontal", 8, 2, 11, 2),
    Sketcher.Constraint("Horizontal", 13, 2, 14, 2),
    Sketcher.Constraint("Horizontal", 12, 2, 15, 2),
    Sketcher.Constraint("Horizontal", 17, 2, 18, 2),
    Sketcher.Constraint("Horizontal", 16, 2, 19, 2),
    Sketcher.Constraint("Horizontal", 21, 2, 22, 2),
    Sketcher.Constraint("Horizontal", 20, 2, 23, 2),
    Sketcher.Constraint("Horizontal", 25, 2, 26, 2),
    Sketcher.Constraint("Horizontal", 24, 2, 27, 2),
    Sketcher.Constraint("Horizontal", 33, 2, 34, 2),
    Sketcher.Constraint("Horizontal", 32, 2, 35, 2),
    Sketcher.Constraint("Horizontal", 37, 2, 38, 2),
    Sketcher.Constraint("Horizontal", 36, 2, 39, 2),
    Sketcher.Constraint("Horizontal", 41, 2, 42, 2),
    Sketcher.Constraint("Horizontal", 40, 2, 43, 2),
    Sketcher.Constraint("Horizontal", 45, 2, 46, 2),
    Sketcher.Constraint("Horizontal", 44, 2, 47, 2),
    Sketcher.Constraint("Horizontal", 49, 2, 50, 2),
    Sketcher.Constraint("Horizontal", 48, 2, 51, 2),
    Sketcher.Constraint("Vertical", 1, 3, 3, 3),
    Sketcher.Constraint("Vertical", 0, 3, 4, 3),
    Sketcher.Constraint("Vertical", 2, 3, 5, 3),
    Sketcher.Constraint("Vertical", 15, 2, 30, 2),
    Sketcher.Constraint("Vertical", 17, 2, 32, 2),
    Sketcher.Constraint("Vertical", 19, 2, 34, 2),
    Sketcher.Constraint("Vertical", 21, 2, 36, 2),
    Sketcher.Constraint("Vertical", 11, 2, 38, 2),
    Sketcher.Constraint("Vertical", 13, 2, 40, 2),
    Sketcher.Constraint("Vertical", 7, 2, 42, 2),
    Sketcher.Constraint("Vertical", 9, 2, 44, 2),
    Sketcher.Constraint("Vertical", 23, 2, 46, 2),
    Sketcher.Constraint("Vertical", 25, 2, 48, 2),
    Sketcher.Constraint("Vertical", 27, 2, 50, 2),
    Sketcher.Constraint("Vertical", 29, 2, 52, 2),
    Sketcher.Constraint("Equal", 8, 10),
    Sketcher.Constraint("Equal", 12, 14),
    Sketcher.Constraint("Equal", 16, 18),
    Sketcher.Constraint("Equal", 20, 22),
    Sketcher.Constraint("Equal", 24, 26),
    Sketcher.Constraint("Equal", 29, 31),
    Sketcher.Constraint("Diameter", 0, Q("3 mm")),
    Sketcher.Constraint("DistanceX", 6, 2, 6, 1, Q("9.9 mm")),
    Sketcher.Constraint("DistanceY", 7, 2, 7, 1, Q("6.4 mm")),
    Sketcher.Constraint("DistanceX", 6, 2, 10, 2, Q("30 mm")),
    Sketcher.Constraint("DistanceX", 18, 2, 14, 2, Q("30 mm")),
    Sketcher.Constraint("DistanceX", 26, 2, 22, 2, Q("30 mm")),
    Sketcher.Constraint("DistanceY", 30, 2, 15, 2, Q("300 mm")),
    Sketcher.Constraint("DistanceX", 0, 3, 1, 3, Q("106.4 mm")),
    Sketcher.Constraint("DistanceX", 1, 3, 2, 3, Q("106.4 mm")),
    Sketcher.Constraint("DistanceY", 3, 3, 1, 3, Q("306.4 mm")),
    Sketcher.Constraint("DistanceY", 0, 3, 6, 2, Q("3.2 mm")),
    Sketcher.Constraint("DistanceX", 13, 2, 14, 2, Q("96.5 mm")),
    Sketcher.Constraint("DistanceX", 17, 2, 22, 2, Q("96.5 mm")),
    Sketcher.Constraint("DistanceX", 6, 2, 0, 3, Q("19.95 mm")),
    Sketcher.Constraint("DistanceY", -1, 1, 0, 3, Q("66.934999 mm")),
    Sketcher.Constraint("DistanceX", 0, 3, -1, 1, Q("242.624768 mm")),
])
pocket1 = body.newObject("PartDesign::Pocket", "Pocket")
pocket1.Profile = sketch2
pocket1.Type = "ThroughAll"

doc.recompute()
